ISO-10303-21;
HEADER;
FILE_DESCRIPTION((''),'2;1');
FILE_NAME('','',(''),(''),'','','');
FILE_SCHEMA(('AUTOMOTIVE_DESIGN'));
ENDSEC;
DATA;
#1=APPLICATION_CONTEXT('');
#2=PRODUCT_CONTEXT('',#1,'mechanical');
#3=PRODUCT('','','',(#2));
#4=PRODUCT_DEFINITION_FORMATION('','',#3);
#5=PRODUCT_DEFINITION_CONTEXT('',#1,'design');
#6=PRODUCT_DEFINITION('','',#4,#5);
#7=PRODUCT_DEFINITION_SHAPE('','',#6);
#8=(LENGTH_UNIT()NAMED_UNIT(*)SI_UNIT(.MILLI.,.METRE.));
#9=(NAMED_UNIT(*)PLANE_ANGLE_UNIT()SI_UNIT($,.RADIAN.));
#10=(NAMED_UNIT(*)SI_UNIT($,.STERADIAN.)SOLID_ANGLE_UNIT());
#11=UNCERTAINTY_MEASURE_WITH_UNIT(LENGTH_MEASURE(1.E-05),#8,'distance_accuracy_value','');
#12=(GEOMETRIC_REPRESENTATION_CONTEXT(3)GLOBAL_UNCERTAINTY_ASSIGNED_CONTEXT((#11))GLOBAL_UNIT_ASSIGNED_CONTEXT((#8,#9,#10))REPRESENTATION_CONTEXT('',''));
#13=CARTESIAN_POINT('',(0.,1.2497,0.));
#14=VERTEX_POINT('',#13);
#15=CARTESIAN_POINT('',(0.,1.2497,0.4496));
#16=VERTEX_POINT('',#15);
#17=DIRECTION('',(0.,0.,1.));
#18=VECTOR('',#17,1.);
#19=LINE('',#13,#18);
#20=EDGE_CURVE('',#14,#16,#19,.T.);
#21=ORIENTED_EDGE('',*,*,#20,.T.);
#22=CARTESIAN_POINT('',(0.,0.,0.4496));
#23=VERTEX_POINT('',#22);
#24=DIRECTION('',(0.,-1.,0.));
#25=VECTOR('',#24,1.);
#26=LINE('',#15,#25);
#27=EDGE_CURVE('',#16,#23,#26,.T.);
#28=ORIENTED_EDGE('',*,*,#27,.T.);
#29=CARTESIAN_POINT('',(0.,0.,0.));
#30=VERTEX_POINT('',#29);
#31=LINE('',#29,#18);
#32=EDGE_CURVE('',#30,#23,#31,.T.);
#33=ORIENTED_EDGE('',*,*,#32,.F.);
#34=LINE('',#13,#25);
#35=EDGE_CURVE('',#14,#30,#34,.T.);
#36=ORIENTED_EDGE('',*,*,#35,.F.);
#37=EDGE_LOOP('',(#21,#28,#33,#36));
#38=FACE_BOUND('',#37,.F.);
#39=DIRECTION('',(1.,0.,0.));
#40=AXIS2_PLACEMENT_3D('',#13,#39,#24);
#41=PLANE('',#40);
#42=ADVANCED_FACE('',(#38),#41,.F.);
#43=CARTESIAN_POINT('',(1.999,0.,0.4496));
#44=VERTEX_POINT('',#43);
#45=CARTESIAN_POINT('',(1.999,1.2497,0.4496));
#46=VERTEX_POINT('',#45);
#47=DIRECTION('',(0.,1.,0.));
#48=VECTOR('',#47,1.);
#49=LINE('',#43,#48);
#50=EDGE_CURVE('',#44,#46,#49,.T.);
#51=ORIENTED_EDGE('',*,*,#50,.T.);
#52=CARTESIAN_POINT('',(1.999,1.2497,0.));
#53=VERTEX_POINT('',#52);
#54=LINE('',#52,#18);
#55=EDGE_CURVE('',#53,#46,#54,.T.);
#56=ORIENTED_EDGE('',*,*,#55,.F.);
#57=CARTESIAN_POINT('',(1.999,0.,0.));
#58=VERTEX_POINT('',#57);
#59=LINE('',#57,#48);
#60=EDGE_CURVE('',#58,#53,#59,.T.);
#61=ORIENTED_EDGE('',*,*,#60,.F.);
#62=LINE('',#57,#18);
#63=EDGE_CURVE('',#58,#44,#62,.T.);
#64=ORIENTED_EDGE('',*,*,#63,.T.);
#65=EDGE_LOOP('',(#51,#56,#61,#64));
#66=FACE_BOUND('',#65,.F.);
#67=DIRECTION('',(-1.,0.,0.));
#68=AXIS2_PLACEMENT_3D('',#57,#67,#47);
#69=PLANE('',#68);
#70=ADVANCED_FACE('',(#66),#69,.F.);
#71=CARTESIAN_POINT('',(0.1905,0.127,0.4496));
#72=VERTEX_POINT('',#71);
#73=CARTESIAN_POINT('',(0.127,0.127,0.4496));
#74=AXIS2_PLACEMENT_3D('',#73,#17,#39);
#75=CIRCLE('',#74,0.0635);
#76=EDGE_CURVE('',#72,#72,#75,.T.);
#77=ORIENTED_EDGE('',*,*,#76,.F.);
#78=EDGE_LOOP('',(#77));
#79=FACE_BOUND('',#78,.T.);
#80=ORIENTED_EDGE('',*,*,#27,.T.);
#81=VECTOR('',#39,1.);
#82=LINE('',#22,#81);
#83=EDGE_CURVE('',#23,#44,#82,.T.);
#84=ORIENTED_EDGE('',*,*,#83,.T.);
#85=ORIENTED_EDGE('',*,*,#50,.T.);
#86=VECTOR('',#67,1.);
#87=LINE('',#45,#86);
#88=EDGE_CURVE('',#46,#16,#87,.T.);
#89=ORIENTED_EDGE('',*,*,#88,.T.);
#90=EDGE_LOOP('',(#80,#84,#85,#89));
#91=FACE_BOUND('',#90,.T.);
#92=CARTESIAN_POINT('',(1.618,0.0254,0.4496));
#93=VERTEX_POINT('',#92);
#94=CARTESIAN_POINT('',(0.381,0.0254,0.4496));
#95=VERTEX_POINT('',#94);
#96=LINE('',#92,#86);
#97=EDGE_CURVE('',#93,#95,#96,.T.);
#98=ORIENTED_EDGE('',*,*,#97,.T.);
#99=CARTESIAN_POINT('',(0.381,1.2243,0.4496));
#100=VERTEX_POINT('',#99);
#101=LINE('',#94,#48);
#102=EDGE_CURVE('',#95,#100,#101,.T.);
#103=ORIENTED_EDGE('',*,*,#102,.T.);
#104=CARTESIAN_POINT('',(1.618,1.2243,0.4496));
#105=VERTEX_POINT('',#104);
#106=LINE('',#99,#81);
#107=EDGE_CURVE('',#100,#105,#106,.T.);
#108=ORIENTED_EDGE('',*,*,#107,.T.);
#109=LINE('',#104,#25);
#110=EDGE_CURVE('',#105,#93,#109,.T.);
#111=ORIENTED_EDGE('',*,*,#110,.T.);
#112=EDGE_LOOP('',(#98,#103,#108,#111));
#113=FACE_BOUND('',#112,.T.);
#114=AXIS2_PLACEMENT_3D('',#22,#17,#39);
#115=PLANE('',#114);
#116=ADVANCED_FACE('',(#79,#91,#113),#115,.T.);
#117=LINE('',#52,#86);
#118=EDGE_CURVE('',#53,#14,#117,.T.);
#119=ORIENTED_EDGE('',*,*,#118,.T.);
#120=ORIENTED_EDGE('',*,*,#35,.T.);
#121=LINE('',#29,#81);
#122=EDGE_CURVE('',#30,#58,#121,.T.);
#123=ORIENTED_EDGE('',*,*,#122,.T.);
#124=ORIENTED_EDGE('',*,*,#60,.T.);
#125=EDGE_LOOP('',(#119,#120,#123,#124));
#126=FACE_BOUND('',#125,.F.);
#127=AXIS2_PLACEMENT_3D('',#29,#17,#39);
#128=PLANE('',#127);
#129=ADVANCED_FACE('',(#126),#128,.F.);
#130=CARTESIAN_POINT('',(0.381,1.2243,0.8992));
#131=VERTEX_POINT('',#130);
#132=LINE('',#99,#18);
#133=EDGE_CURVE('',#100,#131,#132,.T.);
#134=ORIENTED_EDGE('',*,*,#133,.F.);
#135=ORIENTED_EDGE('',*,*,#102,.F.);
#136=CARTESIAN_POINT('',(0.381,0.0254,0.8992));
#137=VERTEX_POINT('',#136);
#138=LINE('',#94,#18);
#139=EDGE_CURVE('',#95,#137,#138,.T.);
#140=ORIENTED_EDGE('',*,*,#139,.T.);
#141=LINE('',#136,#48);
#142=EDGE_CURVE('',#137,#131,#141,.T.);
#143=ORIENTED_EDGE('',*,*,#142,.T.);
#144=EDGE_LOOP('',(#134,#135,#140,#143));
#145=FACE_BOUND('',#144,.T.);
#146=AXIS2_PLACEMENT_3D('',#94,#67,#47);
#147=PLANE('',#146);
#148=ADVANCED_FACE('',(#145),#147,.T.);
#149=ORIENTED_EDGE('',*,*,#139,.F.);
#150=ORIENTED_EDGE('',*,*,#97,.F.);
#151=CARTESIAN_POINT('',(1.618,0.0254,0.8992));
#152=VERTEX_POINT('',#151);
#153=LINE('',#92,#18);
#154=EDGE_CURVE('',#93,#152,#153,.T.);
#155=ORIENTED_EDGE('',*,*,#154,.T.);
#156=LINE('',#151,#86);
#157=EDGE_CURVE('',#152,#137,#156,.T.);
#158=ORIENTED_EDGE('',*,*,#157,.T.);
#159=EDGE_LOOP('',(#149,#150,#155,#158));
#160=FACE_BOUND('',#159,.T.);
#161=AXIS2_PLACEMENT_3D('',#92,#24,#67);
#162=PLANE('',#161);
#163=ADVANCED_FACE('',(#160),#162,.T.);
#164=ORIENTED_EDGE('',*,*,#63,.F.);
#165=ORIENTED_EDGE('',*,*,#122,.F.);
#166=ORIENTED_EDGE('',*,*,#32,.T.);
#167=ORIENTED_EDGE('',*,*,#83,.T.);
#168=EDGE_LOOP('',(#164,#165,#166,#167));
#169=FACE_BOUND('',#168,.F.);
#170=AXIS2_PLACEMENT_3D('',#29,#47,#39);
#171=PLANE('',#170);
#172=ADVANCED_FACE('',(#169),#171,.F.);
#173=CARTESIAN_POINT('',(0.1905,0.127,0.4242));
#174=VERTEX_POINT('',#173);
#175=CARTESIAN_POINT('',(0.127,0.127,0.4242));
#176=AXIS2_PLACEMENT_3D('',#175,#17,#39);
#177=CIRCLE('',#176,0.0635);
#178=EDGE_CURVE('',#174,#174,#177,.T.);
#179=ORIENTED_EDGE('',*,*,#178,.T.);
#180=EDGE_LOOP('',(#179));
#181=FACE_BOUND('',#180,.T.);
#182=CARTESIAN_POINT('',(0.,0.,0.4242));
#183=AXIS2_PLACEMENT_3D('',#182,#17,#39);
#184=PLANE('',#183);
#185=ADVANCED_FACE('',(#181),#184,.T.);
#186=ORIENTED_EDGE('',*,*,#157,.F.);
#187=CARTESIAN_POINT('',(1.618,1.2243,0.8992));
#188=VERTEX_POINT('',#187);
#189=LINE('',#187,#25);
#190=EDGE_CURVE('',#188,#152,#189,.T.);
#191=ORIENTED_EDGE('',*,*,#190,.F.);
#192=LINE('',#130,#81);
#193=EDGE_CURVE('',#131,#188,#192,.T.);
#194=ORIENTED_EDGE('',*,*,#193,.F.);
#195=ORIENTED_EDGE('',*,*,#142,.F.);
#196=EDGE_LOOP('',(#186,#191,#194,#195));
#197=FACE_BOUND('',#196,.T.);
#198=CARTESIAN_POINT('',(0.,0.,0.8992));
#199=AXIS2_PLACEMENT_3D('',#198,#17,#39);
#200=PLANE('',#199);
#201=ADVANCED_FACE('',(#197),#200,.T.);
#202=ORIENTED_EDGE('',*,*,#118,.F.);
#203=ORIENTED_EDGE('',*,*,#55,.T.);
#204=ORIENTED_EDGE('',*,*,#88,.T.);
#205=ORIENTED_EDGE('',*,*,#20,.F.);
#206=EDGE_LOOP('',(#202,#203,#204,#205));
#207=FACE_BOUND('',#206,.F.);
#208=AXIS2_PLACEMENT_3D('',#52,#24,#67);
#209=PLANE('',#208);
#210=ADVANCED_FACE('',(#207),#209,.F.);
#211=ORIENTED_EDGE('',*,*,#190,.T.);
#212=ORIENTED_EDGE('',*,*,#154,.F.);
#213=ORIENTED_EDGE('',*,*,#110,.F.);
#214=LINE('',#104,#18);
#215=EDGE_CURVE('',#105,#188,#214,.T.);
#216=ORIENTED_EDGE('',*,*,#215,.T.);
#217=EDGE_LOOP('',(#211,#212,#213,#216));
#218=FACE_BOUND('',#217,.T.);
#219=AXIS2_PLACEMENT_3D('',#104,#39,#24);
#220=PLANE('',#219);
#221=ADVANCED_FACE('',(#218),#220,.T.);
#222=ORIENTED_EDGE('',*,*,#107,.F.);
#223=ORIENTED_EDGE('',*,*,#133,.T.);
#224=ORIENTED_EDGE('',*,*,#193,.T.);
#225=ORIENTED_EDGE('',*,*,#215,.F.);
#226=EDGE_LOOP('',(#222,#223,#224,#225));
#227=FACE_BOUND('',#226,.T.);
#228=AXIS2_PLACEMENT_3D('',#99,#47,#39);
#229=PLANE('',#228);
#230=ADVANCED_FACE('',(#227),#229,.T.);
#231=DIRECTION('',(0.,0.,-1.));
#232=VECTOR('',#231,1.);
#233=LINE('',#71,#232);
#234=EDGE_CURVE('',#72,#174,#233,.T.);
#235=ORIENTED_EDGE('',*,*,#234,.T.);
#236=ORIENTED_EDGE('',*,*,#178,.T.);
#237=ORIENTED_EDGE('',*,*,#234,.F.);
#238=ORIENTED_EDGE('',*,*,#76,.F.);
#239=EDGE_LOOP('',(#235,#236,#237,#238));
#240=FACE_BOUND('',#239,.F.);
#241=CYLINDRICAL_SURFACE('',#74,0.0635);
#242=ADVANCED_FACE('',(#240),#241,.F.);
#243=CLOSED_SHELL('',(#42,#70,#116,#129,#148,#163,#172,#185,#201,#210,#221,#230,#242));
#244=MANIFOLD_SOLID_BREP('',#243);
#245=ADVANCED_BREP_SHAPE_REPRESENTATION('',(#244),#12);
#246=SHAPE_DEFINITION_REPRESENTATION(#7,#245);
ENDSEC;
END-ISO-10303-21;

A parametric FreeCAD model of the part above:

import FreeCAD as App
import Part
import Sketcher
from FreeCAD import Vector
Q = App.Units.Quantity


def add_polygon(sketch, points):
    """Adds a closed chain of lines whose ends are joined by coincident constraints."""
    first, n = sketch.GeometryCount, len(points)
    for a, b in zip(points, points[1:] + points[:1]):
        sketch.addGeometry(Part.LineSegment(App.Vector(*a, 0), App.Vector(*b, 0)), False)
    for i in range(n):
        sketch.addConstraint(Sketcher.Constraint("Coincident", first + i, 2, first + (i + 1) % n, 1))

doc = App.newDocument("Part")
body = doc.addObject("PartDesign::Body", "Body")

sketch1 = body.newObject("Sketcher::SketchObject", "Sketch")
sketch1.AttachmentSupport = (doc.getObject("XY_Plane"), [""])
sketch1.MapMode = "FlatFace"
add_polygon(sketch1, [(0, 1.2497), (0, 0), (1.999, 0), (1.999, 1.2497)])
sketch1.addConstraint([
    Sketcher.Constraint("Vertical", 0),
    Sketcher.Constraint("Horizontal", 1),
    Sketcher.Constraint("Vertical", 2),
    Sketcher.Constraint("Horizontal", 3),
    Sketcher.Constraint("Coincident", 0, 2, -1, 1),
    Sketcher.Constraint("DistanceX", 1, 1, 1, 2, Q("0.0787 in")),
    Sketcher.Constraint("DistanceY", 0, 2, 0, 1, Q("0.0492 in")),
])
pad1 = body.newObject("PartDesign::Pad", "Pad")
pad1.Profile = sketch1
pad1.Length = Q("0.0177008 in")

sketch2 = body.newObject("Sketcher::SketchObject", "Sketch001")
sketch2.AttachmentSupport = (doc.getObject("XY_Plane"), [""])
sketch2.MapMode = "FlatFace"
sketch2.AttachmentOffset = App.Placement(Vector(0, 0, 0.0177008 * 25.4), App.Rotation())
add_polygon(sketch2, [(1.618, 1.2243), (0.381, 1.2243), (0.381, 0.0254), (1.618, 0.0254)])
sketch2.addConstraint([
    Sketcher.Constraint("Horizontal", 0),
    Sketcher.Constraint("Vertical", 1),
    Sketcher.Constraint("Horizontal", 2),
    Sketcher.Constraint("Vertical", 3),
    Sketcher.Constraint("DistanceX", -1, 1, 0, 2, Q("0.015 in")),
    Sketcher.Constraint("DistanceY", -1, 1, 1, 2, Q("0.001 in")),
    Sketcher.Constraint("DistanceX", 0, 2, 0, 1, Q("0.0487 in")),
    Sketcher.Constraint("DistanceY", 1, 2, 1, 1, Q("0.0472 in")),
])
pad2 = body.newObject("PartDesign::Pad", "Pad001")
pad2.Profile = sketch2
pad2.Length = Q("0.0177008 in")

sketch3 = body.newObject("Sketcher::SketchObject", "Sketch002")
sketch3.AttachmentSupport = (doc.getObject("XY_Plane"), [""])
sketch3.MapMode = "FlatFace"
sketch3.AttachmentOffset = App.Placement(Vector(0, 0, 0.0177008 * 25.4), App.Rotation())
sketch3.addGeometry(Part.Circle(Vector(0.127, 0.127, 0), Vector(0, 0, 1), 0.0635), False)
sketch3.addConstraint([
    Sketcher.Constraint("Diameter", 0, Q("0.005 in")),
    Sketcher.Constraint("DistanceX", -1, 1, 0, 3, Q("0.005 in")),
    Sketcher.Constraint("DistanceY", -1, 1, 0, 3, Q("0.005 in")),
])
pocket1 = body.newObject("PartDesign::Pocket", "Pocket")
pocket1.Profile = sketch3
pocket1.Length = Q("0.001 in")

doc.recompute()
